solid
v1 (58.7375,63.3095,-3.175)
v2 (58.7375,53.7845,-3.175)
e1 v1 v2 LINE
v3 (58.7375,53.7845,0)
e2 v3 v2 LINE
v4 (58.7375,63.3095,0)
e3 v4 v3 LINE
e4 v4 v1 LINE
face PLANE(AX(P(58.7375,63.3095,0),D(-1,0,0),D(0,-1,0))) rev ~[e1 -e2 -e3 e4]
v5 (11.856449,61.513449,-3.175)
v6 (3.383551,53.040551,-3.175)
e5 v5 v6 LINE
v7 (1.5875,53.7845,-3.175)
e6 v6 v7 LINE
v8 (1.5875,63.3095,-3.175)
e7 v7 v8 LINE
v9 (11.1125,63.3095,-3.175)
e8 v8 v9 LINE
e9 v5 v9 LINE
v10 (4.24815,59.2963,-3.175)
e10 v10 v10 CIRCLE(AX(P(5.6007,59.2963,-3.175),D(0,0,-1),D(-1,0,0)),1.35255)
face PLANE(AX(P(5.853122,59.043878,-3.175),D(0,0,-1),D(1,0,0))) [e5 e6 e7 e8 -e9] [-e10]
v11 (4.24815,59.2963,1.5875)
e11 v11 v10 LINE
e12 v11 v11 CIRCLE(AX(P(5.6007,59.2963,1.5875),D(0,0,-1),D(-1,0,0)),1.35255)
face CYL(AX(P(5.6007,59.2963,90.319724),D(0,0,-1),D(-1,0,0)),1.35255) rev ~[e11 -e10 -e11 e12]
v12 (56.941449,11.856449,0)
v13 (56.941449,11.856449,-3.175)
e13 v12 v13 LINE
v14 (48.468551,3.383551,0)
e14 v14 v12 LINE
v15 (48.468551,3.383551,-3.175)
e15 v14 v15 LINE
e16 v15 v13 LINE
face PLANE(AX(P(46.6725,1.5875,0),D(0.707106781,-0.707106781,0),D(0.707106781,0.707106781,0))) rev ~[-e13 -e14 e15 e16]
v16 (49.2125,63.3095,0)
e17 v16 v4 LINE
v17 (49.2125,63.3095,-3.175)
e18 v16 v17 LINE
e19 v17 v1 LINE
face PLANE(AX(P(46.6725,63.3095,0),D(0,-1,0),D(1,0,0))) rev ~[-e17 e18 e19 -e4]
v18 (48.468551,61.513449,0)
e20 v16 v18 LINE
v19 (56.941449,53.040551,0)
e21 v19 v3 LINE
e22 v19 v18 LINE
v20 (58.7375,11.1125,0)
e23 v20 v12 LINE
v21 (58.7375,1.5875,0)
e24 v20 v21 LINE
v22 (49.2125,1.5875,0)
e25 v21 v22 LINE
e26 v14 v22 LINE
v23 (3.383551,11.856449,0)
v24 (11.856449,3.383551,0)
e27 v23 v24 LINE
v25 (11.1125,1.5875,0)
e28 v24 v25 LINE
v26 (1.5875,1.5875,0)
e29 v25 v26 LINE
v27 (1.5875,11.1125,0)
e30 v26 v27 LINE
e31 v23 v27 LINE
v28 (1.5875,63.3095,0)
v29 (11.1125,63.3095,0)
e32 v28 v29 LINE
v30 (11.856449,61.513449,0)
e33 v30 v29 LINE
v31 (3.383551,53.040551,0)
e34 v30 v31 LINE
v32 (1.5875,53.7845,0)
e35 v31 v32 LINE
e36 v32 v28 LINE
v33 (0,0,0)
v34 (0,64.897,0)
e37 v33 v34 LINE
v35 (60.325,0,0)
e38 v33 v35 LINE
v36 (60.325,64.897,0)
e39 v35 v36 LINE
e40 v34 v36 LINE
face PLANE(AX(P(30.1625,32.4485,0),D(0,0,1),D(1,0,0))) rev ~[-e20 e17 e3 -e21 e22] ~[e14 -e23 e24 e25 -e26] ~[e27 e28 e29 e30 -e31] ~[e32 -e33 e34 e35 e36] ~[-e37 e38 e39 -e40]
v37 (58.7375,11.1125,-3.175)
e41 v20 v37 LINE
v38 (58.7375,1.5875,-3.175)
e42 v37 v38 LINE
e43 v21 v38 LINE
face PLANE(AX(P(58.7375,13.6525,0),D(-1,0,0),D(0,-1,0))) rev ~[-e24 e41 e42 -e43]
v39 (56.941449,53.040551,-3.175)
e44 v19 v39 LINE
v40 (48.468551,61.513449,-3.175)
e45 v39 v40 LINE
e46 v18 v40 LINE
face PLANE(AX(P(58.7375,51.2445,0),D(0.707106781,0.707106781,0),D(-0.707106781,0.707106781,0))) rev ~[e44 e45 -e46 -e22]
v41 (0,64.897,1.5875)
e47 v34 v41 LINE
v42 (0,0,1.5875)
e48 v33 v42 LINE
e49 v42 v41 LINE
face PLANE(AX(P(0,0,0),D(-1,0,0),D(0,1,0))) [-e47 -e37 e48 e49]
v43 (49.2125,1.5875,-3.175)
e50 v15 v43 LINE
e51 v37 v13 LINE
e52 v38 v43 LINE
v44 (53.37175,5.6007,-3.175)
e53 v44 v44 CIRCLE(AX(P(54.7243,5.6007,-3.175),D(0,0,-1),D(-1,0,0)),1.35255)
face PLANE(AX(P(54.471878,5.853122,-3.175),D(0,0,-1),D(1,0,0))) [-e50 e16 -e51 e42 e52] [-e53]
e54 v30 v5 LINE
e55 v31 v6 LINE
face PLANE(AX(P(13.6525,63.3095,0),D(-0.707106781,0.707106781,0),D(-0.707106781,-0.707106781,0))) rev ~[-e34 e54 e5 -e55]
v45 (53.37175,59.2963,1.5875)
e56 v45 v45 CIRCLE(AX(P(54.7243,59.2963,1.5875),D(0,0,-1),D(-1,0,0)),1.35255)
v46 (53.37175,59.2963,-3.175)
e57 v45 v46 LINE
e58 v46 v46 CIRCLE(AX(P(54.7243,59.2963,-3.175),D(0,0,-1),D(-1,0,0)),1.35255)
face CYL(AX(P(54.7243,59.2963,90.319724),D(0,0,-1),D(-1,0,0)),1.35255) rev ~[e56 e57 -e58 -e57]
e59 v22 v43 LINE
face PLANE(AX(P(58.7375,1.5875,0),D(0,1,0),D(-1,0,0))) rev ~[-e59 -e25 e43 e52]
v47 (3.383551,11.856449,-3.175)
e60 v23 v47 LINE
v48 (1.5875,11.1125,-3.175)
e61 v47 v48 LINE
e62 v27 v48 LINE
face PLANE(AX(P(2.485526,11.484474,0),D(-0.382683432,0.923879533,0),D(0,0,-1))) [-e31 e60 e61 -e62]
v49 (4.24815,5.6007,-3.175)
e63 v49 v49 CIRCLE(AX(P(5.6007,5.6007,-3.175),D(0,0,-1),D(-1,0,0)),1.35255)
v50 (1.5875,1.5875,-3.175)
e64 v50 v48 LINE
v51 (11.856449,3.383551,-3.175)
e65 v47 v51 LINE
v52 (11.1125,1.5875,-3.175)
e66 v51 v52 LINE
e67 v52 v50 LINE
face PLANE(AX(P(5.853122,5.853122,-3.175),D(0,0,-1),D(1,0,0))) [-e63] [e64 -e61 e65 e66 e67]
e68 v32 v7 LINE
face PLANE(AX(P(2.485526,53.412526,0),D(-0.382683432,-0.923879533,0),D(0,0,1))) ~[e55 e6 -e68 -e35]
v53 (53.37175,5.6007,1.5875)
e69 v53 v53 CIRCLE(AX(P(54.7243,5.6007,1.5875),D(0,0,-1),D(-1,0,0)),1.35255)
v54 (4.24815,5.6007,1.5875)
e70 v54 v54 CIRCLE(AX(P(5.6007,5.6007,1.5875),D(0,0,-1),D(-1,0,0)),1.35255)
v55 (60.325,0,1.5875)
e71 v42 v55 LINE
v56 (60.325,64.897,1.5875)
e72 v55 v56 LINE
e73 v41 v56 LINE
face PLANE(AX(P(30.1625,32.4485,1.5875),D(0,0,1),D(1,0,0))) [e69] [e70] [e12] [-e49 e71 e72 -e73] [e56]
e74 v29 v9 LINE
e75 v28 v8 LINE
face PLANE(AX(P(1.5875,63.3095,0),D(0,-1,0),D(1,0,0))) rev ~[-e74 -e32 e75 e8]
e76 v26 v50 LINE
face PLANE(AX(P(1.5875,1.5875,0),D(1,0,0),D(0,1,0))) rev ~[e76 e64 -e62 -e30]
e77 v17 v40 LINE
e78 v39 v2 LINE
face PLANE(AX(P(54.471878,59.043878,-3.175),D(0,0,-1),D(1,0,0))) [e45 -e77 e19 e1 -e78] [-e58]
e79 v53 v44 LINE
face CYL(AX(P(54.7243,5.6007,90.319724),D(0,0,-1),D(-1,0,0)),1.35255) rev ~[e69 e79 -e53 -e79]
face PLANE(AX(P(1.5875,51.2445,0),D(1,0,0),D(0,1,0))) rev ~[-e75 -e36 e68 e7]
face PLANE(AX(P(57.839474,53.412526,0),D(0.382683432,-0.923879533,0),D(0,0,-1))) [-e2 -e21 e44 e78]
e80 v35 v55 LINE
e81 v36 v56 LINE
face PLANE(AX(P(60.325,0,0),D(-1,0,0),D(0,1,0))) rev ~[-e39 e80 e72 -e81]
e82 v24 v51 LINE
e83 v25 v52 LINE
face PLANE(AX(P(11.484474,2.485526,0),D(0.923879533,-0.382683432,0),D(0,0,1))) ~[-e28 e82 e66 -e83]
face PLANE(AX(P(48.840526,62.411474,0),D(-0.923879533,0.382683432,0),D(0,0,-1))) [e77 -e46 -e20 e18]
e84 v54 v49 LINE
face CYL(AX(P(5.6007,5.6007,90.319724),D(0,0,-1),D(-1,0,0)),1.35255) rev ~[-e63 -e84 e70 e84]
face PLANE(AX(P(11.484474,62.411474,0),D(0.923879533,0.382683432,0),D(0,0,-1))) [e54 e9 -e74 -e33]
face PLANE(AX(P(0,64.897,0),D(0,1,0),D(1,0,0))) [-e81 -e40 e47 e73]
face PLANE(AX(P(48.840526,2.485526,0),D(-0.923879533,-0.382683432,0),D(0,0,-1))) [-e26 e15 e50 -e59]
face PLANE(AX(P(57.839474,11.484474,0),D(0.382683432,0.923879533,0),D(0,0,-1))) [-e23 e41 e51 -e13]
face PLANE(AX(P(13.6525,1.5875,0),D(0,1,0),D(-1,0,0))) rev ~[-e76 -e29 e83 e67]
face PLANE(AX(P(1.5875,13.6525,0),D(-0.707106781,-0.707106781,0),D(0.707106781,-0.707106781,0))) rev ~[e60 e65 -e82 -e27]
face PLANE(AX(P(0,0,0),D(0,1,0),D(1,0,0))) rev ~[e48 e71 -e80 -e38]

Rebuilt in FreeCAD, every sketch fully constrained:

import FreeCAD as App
import Part
import Sketcher
from FreeCAD import Vector
Q = App.Units.Quantity


def edges_at(feature, points):
    """Names of the edges that pass closest to the given points."""
    edges = feature.Shape.Edges
    near = lambda p: min(range(len(edges)), key=lambda i: edges[i].distToShape(Part.Vertex(*p))[0])
    return sorted({f"Edge{near(p) + 1}" for p in points})


def add_polygon(sketch, points):
    """Adds a closed chain of lines whose ends are joined by coincident constraints."""
    first, n = sketch.GeometryCount, len(points)
    for a, b in zip(points, points[1:] + points[:1]):
        sketch.addGeometry(Part.LineSegment(App.Vector(*a, 0), App.Vector(*b, 0)), False)
    for i in range(n):
        sketch.addConstraint(Sketcher.Constraint("Coincident", first + i, 2, first + (i + 1) % n, 1))

doc = App.newDocument("Part")
body = doc.addObject("PartDesign::Body", "Body")

sketch1 = body.newObject("Sketcher::SketchObject", "Sketch")
sketch1.AttachmentSupport = (doc.getObject("XY_Plane"), [""])
sketch1.MapMode = "FlatFace"
add_polygon(sketch1, [(0, 65), (0, 0), (60, 0), (60, 65)])
sketch1.addConstraint([
    Sketcher.Constraint("Vertical", 0),
    Sketcher.Constraint("Horizontal", 1),
    Sketcher.Constraint("Vertical", 2),
    Sketcher.Constraint("Horizontal", 3),
    Sketcher.Constraint("Coincident", 0, 2, -1, 1),
    Sketcher.Constraint("DistanceX", 1, 1, 1, 2, Q("2.375 in")),
    Sketcher.Constraint("DistanceY", 0, 2, 0, 1, Q("2.555 in")),
])
pad1 = body.newObject("PartDesign::Pad", "Pad")
pad1.Profile = sketch1
pad1.Length = Q("0.0625 in")

sketch2 = body.newObject("Sketcher::SketchObject", "Sketch001")
sketch2.AttachmentSupport = (doc.getObject("XY_Plane"), [""])
sketch2.MapMode = "FlatFace"
add_polygon(sketch2, [(59, 63), (59, 51), (47, 63)])
add_polygon(sketch2, [(59, 2), (47, 2), (59, 14)])
sketch2.addConstraint([
    Sketcher.Constraint("Vertical", 0),
    Sketcher.Constraint("Horizontal", 2),
    Sketcher.Constraint("Horizontal", 3),
    Sketcher.Constraint("Vertical", 5),
    Sketcher.Constraint("Perpendicular", 1, 4),
    Sketcher.Constraint("Vertical", 1, 2, 3, 2),
    Sketcher.Constraint("Vertical", 2, 2, 4, 2),
    Sketcher.Constraint("Equal", 3, 0),
    Sketcher.Constraint("DistanceX", 2, 1, 2, 2, Q("0.475 in")),
    Sketcher.Constraint("DistanceY", 3, 2, 1, 2, Q("2.43 in")),
    Sketcher.Constraint("DistanceX", -1, 1, 0, 2, Q("2.3125 in")),
    Sketcher.Constraint("DistanceY", -1, 1, 3, 2, Q("0.0625 in")),
])
pad2 = body.newObject("PartDesign::Pad", "Pad001")
pad2.Profile = sketch2
pad2.Length = Q("0.125 in")
pad2.Reversed = True

sketch3 = body.newObject("Sketcher::SketchObject", "Sketch002")
sketch3.AttachmentSupport = (doc.getObject("XY_Plane"), [""])
sketch3.MapMode = "FlatFace"
add_polygon(sketch3, [(14, 2), (2, 2), (2, 14)])
add_polygon(sketch3, [(2, 51), (2, 63), (14, 63)])
sketch3.addConstraint([
    Sketcher.Constraint("Horizontal", 0),
    Sketcher.Constraint("Vertical", 1),
    Sketcher.Constraint("Vertical", 3),
    Sketcher.Constraint("Horizontal", 4),
    Sketcher.Constraint("Perpendicular", 2, 5),
    Sketcher.Constraint("Vertical", 1, 2, 3, 2),
    Sketcher.Constraint("Vertical", 2, 2, 4, 2),
    Sketcher.Constraint("Equal", 4, 1),
    Sketcher.Constraint("DistanceX", 0, 2, 0, 1, Q("0.475 in")),
    Sketcher.Constraint("DistanceY", 0, 2, 3, 2, Q("2.43 in")),
    Sketcher.Constraint("DistanceX", -1, 1, 0, 2, Q("0.0625 in")),
    Sketcher.Constraint("DistanceY", -1, 1, 0, 2, Q("0.0625 in")),
])
pad3 = body.newObject("PartDesign::Pad", "Pad002")
pad3.Profile = sketch3
pad3.Length = Q("0.125 in")
pad3.Reversed = True

sketch4 = body.newObject("Sketcher::SketchObject", "Sketch003")
sketch4.AttachmentSupport = (doc.getObject("XY_Plane"), [""])
sketch4.MapMode = "FlatFace"
sketch4.AttachmentOffset = App.Placement(Vector(0, 0, 0.0625 * 25.4), App.Rotation())
sketch4.addGeometry([
    Part.Circle(Vector(54.7, 59.3, 0), Vector(0, 0, 1), 1.4),
    Part.Circle(Vector(54.7, 5.6, 0), Vector(0, 0, 1), 1.4),
    Part.Circle(Vector(5.6, 5.6, 0), Vector(0, 0, 1), 1.4),
    Part.Circle(Vector(5.6, 59.3, 0), Vector(0, 0, 1), 1.4),
], False)
sketch4.addConstraint([
    Sketcher.Constraint("Equal", 0, 1),
    Sketcher.Constraint("Equal", 1, 2),
    Sketcher.Constraint("Equal", 2, 3),
    Sketcher.Constraint("Horizontal", 1, 3, 2, 3),
    Sketcher.Constraint("Horizontal", 0, 3, 3, 3),
    Sketcher.Constraint("Vertical", 0, 3, 1, 3),
    Sketcher.Constraint("Vertical", 2, 3, 3, 3),
    Sketcher.Constraint("Diameter", 0, Q("0.1065 in")),
    Sketcher.Constraint("DistanceY", 1, 3, 0, 3, Q("2.114 in")),
    Sketcher.Constraint("DistanceX", 2, 3, 1, 3, Q("1.934 in")),
    Sketcher.Constraint("DistanceX", -1, 1, 0, 3, Q("2.1545 in")),
    Sketcher.Constraint("DistanceY", -1, 1, 0, 3, Q("2.3345 in")),
])
doc.recompute()
hole = body.newObject("PartDesign::Hole", "Hole")
hole.Profile = sketch4
hole.ThreadType = "None"
hole.Diameter = Q("0.1065 in")
hole.DepthType = "ThroughAll"
doc.recompute()

chamfer = body.newObject("PartDesign::Chamfer", "Chamfer")
chamfer.Base = (hole, edges_at(hole, [
    (46.672, 1.587, -1.587),
    (58.737, 13.652, -1.587),
    (58.737, 51.245, -1.587),
    (46.672, 63.309, -1.587),
    (13.652, 1.587, -1.587),
    (1.587, 13.652, -1.587),
    (1.587, 51.245, -1.587),
    (13.652, 63.309, -1.587),
]))
chamfer.Size = Q("0.1 in")

doc.recompute()
